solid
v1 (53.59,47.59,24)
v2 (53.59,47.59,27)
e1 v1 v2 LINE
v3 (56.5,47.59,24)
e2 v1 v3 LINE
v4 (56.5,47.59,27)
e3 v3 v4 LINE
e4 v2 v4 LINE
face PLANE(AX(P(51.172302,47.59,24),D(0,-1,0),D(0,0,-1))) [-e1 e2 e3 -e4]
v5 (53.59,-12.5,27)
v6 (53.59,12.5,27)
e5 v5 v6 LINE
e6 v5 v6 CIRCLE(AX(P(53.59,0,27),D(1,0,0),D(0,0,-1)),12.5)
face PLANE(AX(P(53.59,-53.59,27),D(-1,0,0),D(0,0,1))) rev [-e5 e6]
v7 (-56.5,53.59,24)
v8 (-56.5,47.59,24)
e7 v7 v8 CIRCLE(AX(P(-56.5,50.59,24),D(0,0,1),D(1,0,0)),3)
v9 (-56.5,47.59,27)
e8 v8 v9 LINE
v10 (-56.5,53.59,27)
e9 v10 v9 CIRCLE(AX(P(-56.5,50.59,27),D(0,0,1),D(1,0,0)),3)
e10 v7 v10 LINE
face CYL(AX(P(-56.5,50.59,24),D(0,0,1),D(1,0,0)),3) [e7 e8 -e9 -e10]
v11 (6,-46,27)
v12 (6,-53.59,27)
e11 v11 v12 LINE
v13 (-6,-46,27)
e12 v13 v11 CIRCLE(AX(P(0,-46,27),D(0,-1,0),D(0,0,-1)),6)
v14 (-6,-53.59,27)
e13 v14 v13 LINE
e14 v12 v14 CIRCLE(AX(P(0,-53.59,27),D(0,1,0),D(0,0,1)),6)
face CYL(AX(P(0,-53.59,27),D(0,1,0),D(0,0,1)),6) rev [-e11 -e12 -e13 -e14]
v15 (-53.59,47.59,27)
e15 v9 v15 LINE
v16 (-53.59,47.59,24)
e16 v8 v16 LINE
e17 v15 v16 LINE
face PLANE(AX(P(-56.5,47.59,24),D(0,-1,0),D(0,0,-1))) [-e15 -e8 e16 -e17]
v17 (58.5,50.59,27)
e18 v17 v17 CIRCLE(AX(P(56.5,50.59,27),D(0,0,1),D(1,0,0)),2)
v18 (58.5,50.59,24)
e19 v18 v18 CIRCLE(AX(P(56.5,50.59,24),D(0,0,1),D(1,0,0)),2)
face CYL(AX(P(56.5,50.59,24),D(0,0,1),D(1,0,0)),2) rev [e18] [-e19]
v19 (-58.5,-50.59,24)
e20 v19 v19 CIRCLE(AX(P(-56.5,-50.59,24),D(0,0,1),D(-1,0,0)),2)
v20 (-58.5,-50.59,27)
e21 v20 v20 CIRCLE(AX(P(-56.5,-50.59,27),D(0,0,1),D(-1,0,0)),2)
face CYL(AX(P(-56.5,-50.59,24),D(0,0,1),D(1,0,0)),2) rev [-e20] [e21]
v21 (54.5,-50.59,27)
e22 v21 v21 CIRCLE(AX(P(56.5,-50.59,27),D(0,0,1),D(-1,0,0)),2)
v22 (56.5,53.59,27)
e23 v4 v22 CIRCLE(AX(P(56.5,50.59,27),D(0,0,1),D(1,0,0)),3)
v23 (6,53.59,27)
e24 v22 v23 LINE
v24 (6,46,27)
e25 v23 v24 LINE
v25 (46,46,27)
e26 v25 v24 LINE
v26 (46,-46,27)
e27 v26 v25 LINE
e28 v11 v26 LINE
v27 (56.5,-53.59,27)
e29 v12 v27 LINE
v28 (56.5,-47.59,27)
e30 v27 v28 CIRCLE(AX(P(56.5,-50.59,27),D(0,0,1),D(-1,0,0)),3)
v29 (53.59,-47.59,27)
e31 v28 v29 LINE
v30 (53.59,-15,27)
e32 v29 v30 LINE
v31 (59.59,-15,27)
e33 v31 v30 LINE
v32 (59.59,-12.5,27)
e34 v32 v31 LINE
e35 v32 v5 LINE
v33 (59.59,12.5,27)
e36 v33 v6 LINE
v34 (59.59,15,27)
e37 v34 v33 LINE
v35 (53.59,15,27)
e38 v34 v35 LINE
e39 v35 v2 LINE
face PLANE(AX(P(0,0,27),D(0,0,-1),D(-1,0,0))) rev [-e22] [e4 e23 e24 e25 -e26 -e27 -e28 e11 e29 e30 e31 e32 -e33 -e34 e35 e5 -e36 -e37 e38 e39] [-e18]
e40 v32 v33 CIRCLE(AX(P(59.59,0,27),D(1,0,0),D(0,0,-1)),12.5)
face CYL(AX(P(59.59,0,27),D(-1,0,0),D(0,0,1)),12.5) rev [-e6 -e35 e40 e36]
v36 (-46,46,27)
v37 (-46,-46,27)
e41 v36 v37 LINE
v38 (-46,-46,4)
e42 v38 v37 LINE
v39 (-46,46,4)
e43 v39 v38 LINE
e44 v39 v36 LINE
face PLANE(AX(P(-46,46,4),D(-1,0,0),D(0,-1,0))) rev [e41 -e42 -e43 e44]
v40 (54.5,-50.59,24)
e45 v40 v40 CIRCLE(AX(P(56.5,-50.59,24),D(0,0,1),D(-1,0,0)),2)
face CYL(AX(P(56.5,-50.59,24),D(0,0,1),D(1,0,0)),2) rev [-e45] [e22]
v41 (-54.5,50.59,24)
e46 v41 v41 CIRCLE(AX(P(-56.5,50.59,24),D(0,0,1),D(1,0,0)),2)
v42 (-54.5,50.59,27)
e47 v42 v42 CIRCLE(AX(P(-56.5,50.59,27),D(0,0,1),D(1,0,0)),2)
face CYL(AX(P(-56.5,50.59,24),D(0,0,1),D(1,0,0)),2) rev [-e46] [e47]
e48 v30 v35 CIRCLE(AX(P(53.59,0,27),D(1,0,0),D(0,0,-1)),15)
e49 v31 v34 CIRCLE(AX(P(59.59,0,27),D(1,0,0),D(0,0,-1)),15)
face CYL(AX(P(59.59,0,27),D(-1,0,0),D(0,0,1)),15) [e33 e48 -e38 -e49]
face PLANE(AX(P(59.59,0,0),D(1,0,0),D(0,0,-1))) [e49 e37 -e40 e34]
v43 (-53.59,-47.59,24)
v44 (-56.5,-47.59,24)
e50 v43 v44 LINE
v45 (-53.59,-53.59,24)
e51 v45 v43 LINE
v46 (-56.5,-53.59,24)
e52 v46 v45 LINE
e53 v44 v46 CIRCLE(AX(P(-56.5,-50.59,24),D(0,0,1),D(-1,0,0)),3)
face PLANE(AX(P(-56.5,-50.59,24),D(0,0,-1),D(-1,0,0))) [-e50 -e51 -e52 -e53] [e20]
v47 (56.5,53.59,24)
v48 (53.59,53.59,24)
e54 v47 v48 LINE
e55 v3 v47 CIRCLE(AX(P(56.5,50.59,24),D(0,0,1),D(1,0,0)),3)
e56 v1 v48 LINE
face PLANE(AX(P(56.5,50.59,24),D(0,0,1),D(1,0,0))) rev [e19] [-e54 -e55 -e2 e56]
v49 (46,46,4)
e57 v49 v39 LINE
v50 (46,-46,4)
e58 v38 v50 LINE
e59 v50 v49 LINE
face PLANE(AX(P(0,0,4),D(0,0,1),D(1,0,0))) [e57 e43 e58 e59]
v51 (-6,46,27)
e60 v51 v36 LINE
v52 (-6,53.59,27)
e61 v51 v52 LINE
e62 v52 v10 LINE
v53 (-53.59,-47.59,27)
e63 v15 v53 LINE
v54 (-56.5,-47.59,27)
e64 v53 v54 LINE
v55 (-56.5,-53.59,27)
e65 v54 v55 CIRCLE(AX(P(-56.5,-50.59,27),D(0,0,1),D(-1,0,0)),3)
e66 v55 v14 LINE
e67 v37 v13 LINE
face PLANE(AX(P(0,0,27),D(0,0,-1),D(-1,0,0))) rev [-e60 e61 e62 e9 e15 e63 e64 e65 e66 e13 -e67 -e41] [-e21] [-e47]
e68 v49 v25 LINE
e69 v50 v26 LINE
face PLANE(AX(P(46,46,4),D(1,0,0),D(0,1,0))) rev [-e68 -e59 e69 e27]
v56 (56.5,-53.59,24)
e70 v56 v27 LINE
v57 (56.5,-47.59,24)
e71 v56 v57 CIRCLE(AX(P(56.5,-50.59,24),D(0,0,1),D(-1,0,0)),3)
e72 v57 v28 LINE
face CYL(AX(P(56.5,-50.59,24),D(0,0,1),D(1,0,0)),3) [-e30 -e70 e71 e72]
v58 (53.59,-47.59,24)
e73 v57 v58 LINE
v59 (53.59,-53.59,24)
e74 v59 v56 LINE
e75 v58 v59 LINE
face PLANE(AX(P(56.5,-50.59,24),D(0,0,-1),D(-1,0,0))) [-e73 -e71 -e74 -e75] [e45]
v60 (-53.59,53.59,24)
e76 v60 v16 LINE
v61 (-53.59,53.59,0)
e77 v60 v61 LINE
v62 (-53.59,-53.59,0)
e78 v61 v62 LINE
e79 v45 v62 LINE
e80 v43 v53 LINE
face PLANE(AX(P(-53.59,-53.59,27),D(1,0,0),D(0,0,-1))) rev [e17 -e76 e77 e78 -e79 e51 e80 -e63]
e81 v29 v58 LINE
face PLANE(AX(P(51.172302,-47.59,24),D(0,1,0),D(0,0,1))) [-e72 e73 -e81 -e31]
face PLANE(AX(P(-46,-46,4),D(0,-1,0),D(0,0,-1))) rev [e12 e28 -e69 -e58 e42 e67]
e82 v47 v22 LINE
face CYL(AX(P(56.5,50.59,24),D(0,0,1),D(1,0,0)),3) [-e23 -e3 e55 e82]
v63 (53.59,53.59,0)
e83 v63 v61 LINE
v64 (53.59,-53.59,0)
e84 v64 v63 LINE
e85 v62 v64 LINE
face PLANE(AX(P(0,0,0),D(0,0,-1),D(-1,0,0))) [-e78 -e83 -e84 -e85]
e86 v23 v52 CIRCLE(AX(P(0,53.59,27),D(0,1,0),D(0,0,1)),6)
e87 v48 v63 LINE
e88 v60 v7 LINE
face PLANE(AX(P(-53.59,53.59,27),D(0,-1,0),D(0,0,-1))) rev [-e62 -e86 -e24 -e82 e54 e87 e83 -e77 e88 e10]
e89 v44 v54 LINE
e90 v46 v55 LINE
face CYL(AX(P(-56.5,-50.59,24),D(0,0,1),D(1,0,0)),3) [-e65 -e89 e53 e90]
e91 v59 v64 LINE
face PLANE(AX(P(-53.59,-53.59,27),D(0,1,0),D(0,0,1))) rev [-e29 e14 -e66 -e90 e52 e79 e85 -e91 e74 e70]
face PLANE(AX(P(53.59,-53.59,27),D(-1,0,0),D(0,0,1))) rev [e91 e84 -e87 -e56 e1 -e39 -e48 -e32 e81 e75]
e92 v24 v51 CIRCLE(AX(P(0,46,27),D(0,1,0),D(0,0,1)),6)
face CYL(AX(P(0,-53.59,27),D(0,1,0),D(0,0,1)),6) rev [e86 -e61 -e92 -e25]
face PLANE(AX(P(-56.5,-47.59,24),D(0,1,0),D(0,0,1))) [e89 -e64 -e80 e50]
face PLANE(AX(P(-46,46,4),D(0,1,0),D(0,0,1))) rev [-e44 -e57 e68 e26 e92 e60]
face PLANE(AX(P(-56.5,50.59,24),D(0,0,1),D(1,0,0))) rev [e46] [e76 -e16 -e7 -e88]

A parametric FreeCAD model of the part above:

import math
import FreeCAD as App
import Part
import Sketcher
Q = App.Units.Quantity

doc = App.newDocument("Part")
body = doc.addObject("PartDesign::Body", "Body")

sketch1 = body.newObject("Sketcher::SketchObject", "Sketch")
sketch1.AttachmentSupport = (doc.getObject("XY_Plane"), [""])
sketch1.MapMode = "FlatFace"
sketch1.addGeometry([
    Part.LineSegment(App.Vector(-54, 54, 0), App.Vector(-54, -54, 0)),
    Part.LineSegment(App.Vector(-54, -54, 0), App.Vector(54, -54, 0)),
    Part.LineSegment(App.Vector(54, -54, 0), App.Vector(54, 54, 0)),
    Part.LineSegment(App.Vector(54, 54, 0), App.Vector(-54, 54, 0)),
], False)
sketch1.addConstraint([
    Sketcher.Constraint("Coincident", 0, 2, 1, 1),
    Sketcher.Constraint("Coincident", 1, 2, 2, 1),
    Sketcher.Constraint("Coincident", 2, 2, 3, 1),
    Sketcher.Constraint("Coincident", 3, 2, 0, 1),
    Sketcher.Constraint("Vertical", 0),
    Sketcher.Constraint("Horizontal", 1),
    Sketcher.Constraint("Vertical", 2),
    Sketcher.Constraint("Horizontal", 3),
    Sketcher.Constraint("Symmetric", 0, 2, 2, 2, -1, 1),
    Sketcher.Constraint("Equal", 3, 0),
    Sketcher.Constraint("DistanceX", 1, 1, 1, 2, Q("107.18 mm")),
])
pad1 = body.newObject("PartDesign::Pad", "Pad")
pad1.Profile = sketch1
pad1.Length = 27

sketch2 = body.newObject("Sketcher::SketchObject", "Sketch001")
sketch2.AttachmentSupport = (doc.getObject("XY_Plane"), [""])
sketch2.MapMode = "FlatFace"
sketch2.AttachmentOffset = App.Placement(App.Vector(0, 0, 27), App.Rotation())
sketch2.addGeometry([
    Part.LineSegment(App.Vector(-46, 46, 0), App.Vector(-46, -46, 0)),
    Part.LineSegment(App.Vector(-46, -46, 0), App.Vector(46, -46, 0)),
    Part.LineSegment(App.Vector(46, -46, 0), App.Vector(46, 46, 0)),
    Part.LineSegment(App.Vector(46, 46, 0), App.Vector(-46, 46, 0)),
], False)
sketch2.addConstraint([
    Sketcher.Constraint("Coincident", 0, 2, 1, 1),
    Sketcher.Constraint("Coincident", 1, 2, 2, 1),
    Sketcher.Constraint("Coincident", 2, 2, 3, 1),
    Sketcher.Constraint("Coincident", 3, 2, 0, 1),
    Sketcher.Constraint("Vertical", 0),
    Sketcher.Constraint("Horizontal", 1),
    Sketcher.Constraint("Vertical", 2),
    Sketcher.Constraint("Horizontal", 3),
    Sketcher.Constraint("Symmetric", 0, 2, 2, 2, -1, 1),
    Sketcher.Constraint("Equal", 3, 0),
    Sketcher.Constraint("DistanceX", 1, 1, 1, 2, Q("92 mm")),
])
pocket1 = body.newObject("PartDesign::Pocket", "Pocket")
pocket1.Profile = sketch2
pocket1.Length = 23

sketch3 = body.newObject("Sketcher::SketchObject", "Sketch002")
sketch3.AttachmentSupport = (doc.getObject("XZ_Plane"), [""])
sketch3.MapMode = "FlatFace"
sketch3.AttachmentOffset = App.Placement(App.Vector(0, 0, -53.59), App.Rotation())
sketch3.addGeometry(Part.Circle(App.Vector(0, 27, 0), App.Vector(0, 0, 1), 6), False)
sketch3.addConstraint([
    Sketcher.Constraint("PointOnObject", 0, 3, -2),
    Sketcher.Constraint("Diameter", 0, Q("12 mm")),
    Sketcher.Constraint("DistanceY", -1, 1, 0, 3, Q("27 mm")),
])
pocket2 = body.newObject("PartDesign::Pocket", "Pocket001")
pocket2.Profile = sketch3
pocket2.Type = "ThroughAll"
pocket2.Reversed = True

sketch4 = body.newObject("Sketcher::SketchObject", "Sketch003")
sketch4.AttachmentSupport = (doc.getObject("YZ_Plane"), [""])
sketch4.MapMode = "FlatFace"
sketch4.AttachmentOffset = App.Placement(App.Vector(0, 0, 53.59), App.Rotation())
sketch4.addGeometry([
    Part.ArcOfCircle(Part.Circle(App.Vector(0, 27, 0), App.Vector(0, 0, 1), 15), math.radians(180), math.radians(360)),
    Part.LineSegment(App.Vector(15, 27, 0), App.Vector(12.5, 27, 0)),
    Part.ArcOfCircle(Part.Circle(App.Vector(0, 27, 0), App.Vector(0, 0, 1), 12.5), math.radians(180), math.radians(360)),
    Part.LineSegment(App.Vector(-12.5, 27, 0), App.Vector(-15, 27, 0)),
], False)
sketch4.addConstraint([
    Sketcher.Constraint("Coincident", 0, 2, 1, 1),
    Sketcher.Constraint("Coincident", 1, 2, 2, 2),
    Sketcher.Constraint("Coincident", 2, 1, 3, 1),
    Sketcher.Constraint("Coincident", 3, 2, 0, 1),
    Sketcher.Constraint("Horizontal", 1),
    Sketcher.Constraint("Horizontal", 3),
    Sketcher.Constraint("Coincident", 2, 3, 0, 3),
    Sketcher.Constraint("Symmetric", 1, 2, 2, 1, -2),
    Sketcher.Constraint("Horizontal", 2, 3, 0, 2),
    Sketcher.Constraint("Radius", 0, Q("15 mm")),
    Sketcher.Constraint("Radius", 2, Q("12.5 mm")),
    Sketcher.Constraint("DistanceY", -1, 1, 0, 3, Q("27 mm")),
])
pad2 = body.newObject("PartDesign::Pad", "Pad001")
pad2.Profile = sketch4
pad2.Length = 6

sketch5 = body.newObject("Sketcher::SketchObject", "Sketch004")
sketch5.AttachmentSupport = (doc.getObject("XY_Plane"), [""])
sketch5.MapMode = "FlatFace"
sketch5.AttachmentOffset = App.Placement(App.Vector(0, 0, 27), App.Rotation())
sketch5.addGeometry([
    Part.LineSegment(App.Vector(-49.5, 53.6, 0), App.Vector(-56.5, 53.6, 0)),
    Part.ArcOfCircle(Part.Circle(App.Vector(-56.5, 50.6, 0), App.Vector(0, 0, 1), 3), math.radians(90), math.radians(270)),
    Part.LineSegment(App.Vector(-56.5, 47.6, 0), App.Vector(-49.5, 47.6, 0)),
    Part.LineSegment(App.Vector(-49.5, 47.6, 0), App.Vector(-49.5, 53.6, 0)),
    Part.Circle(App.Vector(-56.5, 50.6, 0), App.Vector(0, 0, 1), 2),
    Part.LineSegment(App.Vector(56.5, 53.6, 0), App.Vector(51.2, 53.6, 0)),
    Part.LineSegment(App.Vector(51.2, 53.6, 0), App.Vector(51.2, 47.6, 0)),
    Part.LineSegment(App.Vector(51.2, 47.6, 0), App.Vector(56.5, 47.6, 0)),
    Part.ArcOfCircle(Part.Circle(App.Vector(56.5, 50.6, 0), App.Vector(0, 0, 1), 3), math.radians(-90), math.radians(90)),
    Part.Circle(App.Vector(56.5, 50.6, 0), App.Vector(0, 0, 1), 2),
    Part.LineSegment(App.Vector(56.5, -47.6, 0), App.Vector(51.2, -47.6, 0)),
    Part.LineSegment(App.Vector(51.2, -47.6, 0), App.Vector(51.2, -53.6, 0)),
    Part.LineSegment(App.Vector(51.2, -53.6, 0), App.Vector(56.5, -53.6, 0)),
    Part.ArcOfCircle(Part.Circle(App.Vector(56.5, -50.6, 0), App.Vector(0, 0, 1), 3), math.radians(-90), math.radians(90)),
    Part.Circle(App.Vector(56.5, -50.6, 0), App.Vector(0, 0, 1), 2),
    Part.LineSegment(App.Vector(-49.5, -53.6, 0), App.Vector(-49.5, -47.6, 0)),
    Part.LineSegment(App.Vector(-49.5, -47.6, 0), App.Vector(-56.5, -47.6, 0)),
    Part.ArcOfCircle(Part.Circle(App.Vector(-56.5, -50.6, 0), App.Vector(0, 0, 1), 3), math.radians(90), math.radians(270)),
    Part.LineSegment(App.Vector(-56.5, -53.6, 0), App.Vector(-49.5, -53.6, 0)),
    Part.Circle(App.Vector(-56.5, -50.6, 0), App.Vector(0, 0, 1), 2),
], False)
sketch5.addConstraint([
    Sketcher.Constraint("Tangent", 0, 2, 1, 1),
    Sketcher.Constraint("Tangent", 1, 2, 2, 1),
    Sketcher.Constraint("Coincident", 2, 2, 3, 1),
    Sketcher.Constraint("Coincident", 3, 2, 0, 1),
    Sketcher.Constraint("Coincident", 5, 2, 6, 1),
    Sketcher.Constraint("Coincident", 6, 2, 7, 1),
    Sketcher.Constraint("Tangent", 7, 2, 8, 1),
    Sketcher.Constraint("Tangent", 8, 2, 5, 1),
    Sketcher.Constraint("Coincident", 10, 2, 11, 1),
    Sketcher.Constraint("Coincident", 11, 2, 12, 1),
    Sketcher.Constraint("Tangent", 12, 2, 13, 1),
    Sketcher.Constraint("Tangent", 13, 2, 10, 1),
    Sketcher.Constraint("Coincident", 15, 2, 16, 1),
    Sketcher.Constraint("Tangent", 16, 2, 17, 1),
    Sketcher.Constraint("Tangent", 17, 2, 18, 1),
    Sketcher.Constraint("Coincident", 18, 2, 15, 1),
    Sketcher.Constraint("Horizontal", 0),
    Sketcher.Constraint("Horizontal", 2),
    Sketcher.Constraint("Vertical", 3),
    Sketcher.Constraint("Horizontal", 5),
    Sketcher.Constraint("Vertical", 6),
    Sketcher.Constraint("Horizontal", 7),
    Sketcher.Constraint("Horizontal", 10),
    Sketcher.Constraint("Vertical", 11),
    Sketcher.Constraint("Horizontal", 12),
    Sketcher.Constraint("Vertical", 15),
    Sketcher.Constraint("Horizontal", 16),
    Sketcher.Constraint("Horizontal", 18),
    Sketcher.Constraint("Coincident", 4, 3, 1, 3),
    Sketcher.Constraint("Coincident", 9, 3, 8, 3),
    Sketcher.Constraint("Coincident", 14, 3, 13, 3),
    Sketcher.Constraint("Coincident", 19, 3, 17, 3),
    Sketcher.Constraint("Equal", 1, 8),
    Sketcher.Constraint("Equal", 4, 9),
    Sketcher.Constraint("Equal", 8, 13),
    Sketcher.Constraint("Equal", 9, 14),
    Sketcher.Constraint("Equal", 13, 17),
    Sketcher.Constraint("Equal", 14, 19),
    Sketcher.Constraint("Symmetric", 1, 3, 13, 3, -1, 1),
    Sketcher.Constraint("Symmetric", 8, 3, 17, 3, -1, 1),
    Sketcher.Constraint("Symmetric", 1, 3, 8, 3, -2),
    Sketcher.Constraint("Vertical", 6, 2, 10, 2),
    Sketcher.Constraint("Vertical", 3, 2, 15, 2),
    Sketcher.Constraint("Diameter", 4, Q("4 mm")),
    Sketcher.Constraint("Radius", 1, Q("3 mm")),
    Sketcher.Constraint("DistanceX", 1, 3, 8, 3, Q("113 mm")),
    Sketcher.Constraint("DistanceY", -1, 1, 1, 3, Q("50.59 mm")),
    Sketcher.Constraint("DistanceX", 0, 2, 0, 1, Q("7.026507 mm")),
    Sketcher.Constraint("DistanceX", 5, 2, 5, 1, Q("5.327698 mm")),
])
pad3 = body.newObject("PartDesign::Pad", "Pad002")
pad3.Profile = sketch5
pad3.Length = 3
pad3.Reversed = True

doc.recompute()
